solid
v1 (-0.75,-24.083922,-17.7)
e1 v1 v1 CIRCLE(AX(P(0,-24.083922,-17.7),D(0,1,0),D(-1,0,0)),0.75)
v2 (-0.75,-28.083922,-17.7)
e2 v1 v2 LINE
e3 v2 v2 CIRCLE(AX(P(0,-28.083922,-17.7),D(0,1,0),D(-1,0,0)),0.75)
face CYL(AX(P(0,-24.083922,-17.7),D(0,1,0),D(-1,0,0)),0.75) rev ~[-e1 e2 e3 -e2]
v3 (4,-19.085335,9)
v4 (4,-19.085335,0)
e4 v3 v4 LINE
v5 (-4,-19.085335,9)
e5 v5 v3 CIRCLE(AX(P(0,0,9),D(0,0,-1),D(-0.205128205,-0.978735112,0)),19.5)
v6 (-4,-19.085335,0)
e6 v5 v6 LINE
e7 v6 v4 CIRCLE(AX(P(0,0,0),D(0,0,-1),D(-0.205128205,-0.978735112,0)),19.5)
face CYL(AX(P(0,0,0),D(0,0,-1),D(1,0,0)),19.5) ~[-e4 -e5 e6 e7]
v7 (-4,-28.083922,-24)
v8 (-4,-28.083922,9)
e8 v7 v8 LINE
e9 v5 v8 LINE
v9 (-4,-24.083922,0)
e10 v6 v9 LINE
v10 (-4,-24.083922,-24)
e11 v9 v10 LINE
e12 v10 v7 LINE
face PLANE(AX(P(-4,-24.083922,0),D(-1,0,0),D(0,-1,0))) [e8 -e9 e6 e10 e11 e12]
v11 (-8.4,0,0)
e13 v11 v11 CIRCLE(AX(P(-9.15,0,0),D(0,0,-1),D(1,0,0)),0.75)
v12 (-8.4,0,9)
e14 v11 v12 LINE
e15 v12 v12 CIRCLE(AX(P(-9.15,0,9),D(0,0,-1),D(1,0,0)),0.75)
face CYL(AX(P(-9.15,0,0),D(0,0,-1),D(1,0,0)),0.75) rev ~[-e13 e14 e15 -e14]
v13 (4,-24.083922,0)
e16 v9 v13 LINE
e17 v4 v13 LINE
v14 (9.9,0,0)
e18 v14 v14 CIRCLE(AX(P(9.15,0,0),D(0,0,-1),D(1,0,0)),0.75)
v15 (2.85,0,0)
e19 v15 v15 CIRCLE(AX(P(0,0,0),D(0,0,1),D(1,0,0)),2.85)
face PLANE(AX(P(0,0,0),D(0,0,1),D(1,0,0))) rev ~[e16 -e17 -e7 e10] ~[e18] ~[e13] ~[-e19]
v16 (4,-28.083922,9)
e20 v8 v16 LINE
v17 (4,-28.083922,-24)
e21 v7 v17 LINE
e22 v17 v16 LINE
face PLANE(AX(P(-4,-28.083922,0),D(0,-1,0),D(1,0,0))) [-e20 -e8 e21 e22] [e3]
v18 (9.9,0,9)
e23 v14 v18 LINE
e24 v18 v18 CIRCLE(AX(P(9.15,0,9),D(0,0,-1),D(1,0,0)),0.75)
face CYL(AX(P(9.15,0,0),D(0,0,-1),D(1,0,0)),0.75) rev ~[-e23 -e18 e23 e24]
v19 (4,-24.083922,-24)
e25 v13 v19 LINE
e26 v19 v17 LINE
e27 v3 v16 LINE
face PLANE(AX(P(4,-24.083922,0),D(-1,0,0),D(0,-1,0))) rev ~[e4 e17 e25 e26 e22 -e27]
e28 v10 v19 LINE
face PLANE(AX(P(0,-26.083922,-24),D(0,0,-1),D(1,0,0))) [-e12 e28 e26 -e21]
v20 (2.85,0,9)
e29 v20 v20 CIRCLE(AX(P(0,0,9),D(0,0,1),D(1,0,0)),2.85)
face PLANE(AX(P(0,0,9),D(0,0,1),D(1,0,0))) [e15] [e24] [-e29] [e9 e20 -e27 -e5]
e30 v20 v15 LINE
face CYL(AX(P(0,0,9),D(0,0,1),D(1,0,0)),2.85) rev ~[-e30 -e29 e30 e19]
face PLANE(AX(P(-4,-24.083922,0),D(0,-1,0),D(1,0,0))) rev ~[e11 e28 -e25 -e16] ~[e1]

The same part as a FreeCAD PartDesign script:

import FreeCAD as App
import Part
import Sketcher

V = App.Vector


def add_polygon(sketch, points):
    """Adds a closed chain of lines whose ends are joined by coincident constraints."""
    first, n = sketch.GeometryCount, len(points)
    for a, b in zip(points, points[1:] + points[:1]):
        sketch.addGeometry(Part.LineSegment(App.Vector(*a, 0), App.Vector(*b, 0)), False)
    for i in range(n):
        sketch.addConstraint(Sketcher.Constraint("Coincident", first + i, 2, first + (i + 1) % n, 1))

doc = App.newDocument("Part")
body = doc.addObject("PartDesign::Body", "Body")

# Sketch on XY plane
sketch1 = doc.addObject("Sketcher::SketchObject", "Sketch")
body.addObject(sketch1)
sketch1.AttachmentSupport = (doc.XY_Plane, [""])
sketch1.MapMode = "FlatFace"
sketch1.addGeometry(Part.Circle(V(0, 0, 0), V(0, 0, 1), 20), False)
sketch1.addConstraint(Sketcher.Constraint("Coincident", 0, 3, -1, 1))
sketch1.addConstraint(Sketcher.Constraint("Diameter", 0, 39.0))
pad1 = doc.addObject("PartDesign::Pad", "Pad")
body.addObject(pad1)
pad1.Profile = sketch1
pad1.Length = 9

# Sketch on XY plane
sketch2 = doc.addObject("Sketcher::SketchObject", "Sketch001")
body.addObject(sketch2)
sketch2.AttachmentSupport = (doc.XY_Plane, [""])
sketch2.MapMode = "FlatFace"
sketch2.AttachmentOffset = App.Placement(V(0, 0, 9), App.Rotation())
sketch2.addGeometry(Part.Circle(V(0, 0, 0), V(0, 0, 1), 2.9), False)
sketch2.addConstraint(Sketcher.Constraint("Coincident", 0, 3, -1, 1))
sketch2.addConstraint(Sketcher.Constraint("Diameter", 0, 5.7))
pocket1 = doc.addObject("PartDesign::Pocket", "Pocket")
body.addObject(pocket1)
pocket1.Profile = sketch2
pocket1.Type = "ThroughAll"

# Sketch on XY plane
sketch3 = doc.addObject("Sketcher::SketchObject", "Sketch002")
body.addObject(sketch3)
sketch3.AttachmentSupport = (doc.XY_Plane, [""])
sketch3.MapMode = "FlatFace"
add_polygon(sketch3, [(-4, -28), (-4, -19), (4, -19), (4, -28)])  # lines 0-3
sketch3.addConstraint(Sketcher.Constraint("Vertical", 0))
sketch3.addConstraint(Sketcher.Constraint("Horizontal", 1))
sketch3.addConstraint(Sketcher.Constraint("Vertical", 2))
sketch3.addConstraint(Sketcher.Constraint("Horizontal", 3))
sketch3.addConstraint(Sketcher.Constraint("DistanceX", 1, 1, 1, 2, 8.0))
sketch3.addConstraint(Sketcher.Constraint("DistanceY", 0, 1, 0, 2, 9.0))
sketch3.addConstraint(Sketcher.Constraint("DistanceX", 0, 2, -1, 1, 4.0))
sketch3.addConstraint(Sketcher.Constraint("DistanceY", 0, 2, -1, 1, 19.083922))
pad2 = doc.addObject("PartDesign::Pad", "Pad001")
body.addObject(pad2)
pad2.Profile = sketch3
pad2.Length = 9

# Sketch on XY plane
sketch4 = doc.addObject("Sketcher::SketchObject", "Sketch003")
body.addObject(sketch4)
sketch4.AttachmentSupport = (doc.XY_Plane, [""])
sketch4.MapMode = "FlatFace"
add_polygon(sketch4, [(-4, -28.1), (-4, -24.1), (4, -24.1), (4, -28.1)])  # lines 0-3
sketch4.addConstraint(Sketcher.Constraint("Vertical", 0))
sketch4.addConstraint(Sketcher.Constraint("Horizontal", 1))
sketch4.addConstraint(Sketcher.Constraint("Vertical", 2))
sketch4.addConstraint(Sketcher.Constraint("Horizontal", 3))
sketch4.addConstraint(Sketcher.Constraint("DistanceX", 1, 1, 1, 2, 8.0))
sketch4.addConstraint(Sketcher.Constraint("DistanceY", 0, 1, 0, 2, 4.0))
sketch4.addConstraint(Sketcher.Constraint("DistanceX", 0, 2, -1, 1, 4.0))
sketch4.addConstraint(Sketcher.Constraint("DistanceY", 0, 2, -1, 1, 24.083922))
pad3 = doc.addObject("PartDesign::Pad", "Pad002")
body.addObject(pad3)
pad3.Profile = sketch4
pad3.Length = 24
pad3.Reversed = True

# Sketch on XY plane
sketch5 = doc.addObject("Sketcher::SketchObject", "Sketch004")
body.addObject(sketch5)
sketch5.AttachmentSupport = (doc.XY_Plane, [""])
sketch5.MapMode = "FlatFace"
sketch5.addGeometry(Part.Circle(V(-9.2, 0, 0), V(0, 0, 1), 0.8), False)
sketch5.addGeometry(Part.Circle(V(9.2, 0, 0), V(0, 0, 1), 0.8), False)
sketch5.addConstraint(Sketcher.Constraint("Equal", 0, 1))
sketch5.addConstraint(Sketcher.Constraint("Symmetric", 0, 3, 1, 3, -1, 1))
sketch5.addConstraint(Sketcher.Constraint("PointOnObject", 0, 3, -1))
sketch5.addConstraint(Sketcher.Constraint("Diameter", 0, 1.5))
sketch5.addConstraint(Sketcher.Constraint("DistanceX", 0, 3, 1, 3, 18.3))
pocket2 = doc.addObject("PartDesign::Pocket", "Pocket001")
body.addObject(pocket2)
pocket2.Profile = sketch5
pocket2.Type = "ThroughAll"
pocket2.Reversed = True

# Sketch on XZ plane
sketch6 = doc.addObject("Sketcher::SketchObject", "Sketch005")
body.addObject(sketch6)
sketch6.AttachmentSupport = (doc.XZ_Plane, [""])
sketch6.MapMode = "FlatFace"
sketch6.AttachmentOffset = App.Placement(V(0, 0, 24.083922), App.Rotation())
sketch6.addGeometry(Part.Circle(V(0, -17.7, 0), V(0, 0, 1), 0.8), False)
sketch6.addConstraint(Sketcher.Constraint("PointOnObject", 0, 3, -2))
sketch6.addConstraint(Sketcher.Constraint("Diameter", 0, 1.5))
sketch6.addConstraint(Sketcher.Constraint("DistanceY", 0, 3, -1, 1, 17.7))
pocket3 = doc.addObject("PartDesign::Pocket", "Pocket002")
body.addObject(pocket3)
pocket3.Profile = sketch6
pocket3.Type = "ThroughAll"
pocket3.Reversed = True

doc.recompute()
